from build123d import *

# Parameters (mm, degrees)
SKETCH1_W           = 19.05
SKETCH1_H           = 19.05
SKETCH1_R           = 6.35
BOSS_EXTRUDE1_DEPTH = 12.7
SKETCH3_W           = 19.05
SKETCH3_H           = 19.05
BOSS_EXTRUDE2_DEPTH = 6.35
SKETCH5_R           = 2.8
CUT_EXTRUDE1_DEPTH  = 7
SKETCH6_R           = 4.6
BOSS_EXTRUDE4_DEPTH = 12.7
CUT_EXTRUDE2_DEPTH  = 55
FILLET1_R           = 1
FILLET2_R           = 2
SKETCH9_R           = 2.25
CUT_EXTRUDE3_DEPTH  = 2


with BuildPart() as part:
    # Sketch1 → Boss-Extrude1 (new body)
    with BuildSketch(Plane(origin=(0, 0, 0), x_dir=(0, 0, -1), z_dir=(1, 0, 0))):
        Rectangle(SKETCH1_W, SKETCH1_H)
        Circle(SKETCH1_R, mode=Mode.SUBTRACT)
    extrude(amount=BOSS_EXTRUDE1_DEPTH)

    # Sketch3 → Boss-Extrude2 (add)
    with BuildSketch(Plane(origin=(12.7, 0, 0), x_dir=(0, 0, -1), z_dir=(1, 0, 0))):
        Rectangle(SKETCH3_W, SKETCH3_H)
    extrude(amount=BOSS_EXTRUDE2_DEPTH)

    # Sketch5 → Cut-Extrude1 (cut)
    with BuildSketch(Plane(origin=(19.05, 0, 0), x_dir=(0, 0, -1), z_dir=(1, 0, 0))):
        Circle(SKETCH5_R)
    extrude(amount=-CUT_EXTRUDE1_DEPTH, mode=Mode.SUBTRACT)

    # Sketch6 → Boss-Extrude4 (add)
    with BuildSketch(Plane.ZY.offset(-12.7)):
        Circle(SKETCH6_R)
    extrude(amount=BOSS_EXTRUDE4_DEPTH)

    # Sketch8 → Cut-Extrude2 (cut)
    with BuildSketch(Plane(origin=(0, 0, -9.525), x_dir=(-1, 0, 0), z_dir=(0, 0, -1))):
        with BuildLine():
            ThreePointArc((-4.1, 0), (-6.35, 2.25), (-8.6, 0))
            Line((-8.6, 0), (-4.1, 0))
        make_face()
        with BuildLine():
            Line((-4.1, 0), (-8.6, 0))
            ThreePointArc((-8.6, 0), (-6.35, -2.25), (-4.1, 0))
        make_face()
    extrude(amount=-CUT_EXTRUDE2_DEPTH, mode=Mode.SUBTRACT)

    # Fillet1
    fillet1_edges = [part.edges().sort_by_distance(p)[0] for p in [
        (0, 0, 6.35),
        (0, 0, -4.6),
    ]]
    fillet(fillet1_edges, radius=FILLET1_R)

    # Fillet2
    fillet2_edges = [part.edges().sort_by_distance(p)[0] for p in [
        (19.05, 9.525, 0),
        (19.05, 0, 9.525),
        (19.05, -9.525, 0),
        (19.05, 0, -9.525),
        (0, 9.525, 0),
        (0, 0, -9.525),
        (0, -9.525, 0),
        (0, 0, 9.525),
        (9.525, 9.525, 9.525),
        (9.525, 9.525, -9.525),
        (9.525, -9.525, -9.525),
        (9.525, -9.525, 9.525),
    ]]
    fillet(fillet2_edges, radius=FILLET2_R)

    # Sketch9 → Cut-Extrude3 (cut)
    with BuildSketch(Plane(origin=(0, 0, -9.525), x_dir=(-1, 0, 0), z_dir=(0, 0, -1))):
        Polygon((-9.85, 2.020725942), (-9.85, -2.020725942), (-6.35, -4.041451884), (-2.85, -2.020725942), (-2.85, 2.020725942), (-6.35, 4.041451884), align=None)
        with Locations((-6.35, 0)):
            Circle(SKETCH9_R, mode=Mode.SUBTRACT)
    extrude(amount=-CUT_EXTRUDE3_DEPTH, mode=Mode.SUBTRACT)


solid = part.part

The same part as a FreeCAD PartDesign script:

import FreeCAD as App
import Part
import Sketcher
Q = App.Units.Quantity


def edges_at(feature, points):
    """Names of the edges that pass closest to the given points."""
    edges = feature.Shape.Edges
    near = lambda p: min(range(len(edges)), key=lambda i: edges[i].distToShape(Part.Vertex(*p))[0])
    return sorted({f"Edge{near(p) + 1}" for p in points})

doc = App.newDocument("Part")
body = doc.addObject("PartDesign::Body", "Body")

sketch1 = doc.addObject("Sketcher::SketchObject", "Sketch")
body.addObject(sketch1)
sketch1.AttachmentSupport = (doc.YZ_Plane, [""])
sketch1.MapMode = "FlatFace"
sketch1.addGeometry([
    Part.LineSegment(App.Vector(10, 10, 0), App.Vector(-10, 10, 0)),
    Part.LineSegment(App.Vector(-10, 10, 0), App.Vector(-10, -10, 0)),
    Part.LineSegment(App.Vector(-10, -10, 0), App.Vector(10, -10, 0)),
    Part.LineSegment(App.Vector(10, -10, 0), App.Vector(10, 10, 0)),
    Part.Circle(App.Vector(0, 0, 0), App.Vector(0, 0, 1), 6),
], False)
sketch1.addConstraint([
    Sketcher.Constraint("Coincident", 0, 2, 1, 1),
    Sketcher.Constraint("Coincident", 1, 2, 2, 1),
    Sketcher.Constraint("Coincident", 2, 2, 3, 1),
    Sketcher.Constraint("Coincident", 3, 2, 0, 1),
    Sketcher.Constraint("Horizontal", 0),
    Sketcher.Constraint("Vertical", 1),
    Sketcher.Constraint("Horizontal", 2),
    Sketcher.Constraint("Vertical", 3),
    Sketcher.Constraint("Coincident", 4, 3, -1, 1),
    Sketcher.Constraint("Symmetric", 0, 2, 2, 2, -1, 1),
    Sketcher.Constraint("Equal", 2, 1),
    Sketcher.Constraint("Diameter", 4, 12.7),
    Sketcher.Constraint("DistanceX", 0, 2, 0, 1, 19.05),
])
pad1 = doc.addObject("PartDesign::Pad", "Pad")
body.addObject(pad1)
pad1.Profile = sketch1
pad1.Length = 12.7

sketch2 = doc.addObject("Sketcher::SketchObject", "Sketch001")
body.addObject(sketch2)
sketch2.AttachmentSupport = (doc.YZ_Plane, [""])
sketch2.MapMode = "FlatFace"
sketch2.AttachmentOffset = App.Placement(App.Vector(0, 0, 12.7), App.Rotation())
sketch2.addGeometry([
    Part.LineSegment(App.Vector(10, 10, 0), App.Vector(-10, 10, 0)),
    Part.LineSegment(App.Vector(-10, 10, 0), App.Vector(-10, -10, 0)),
    Part.LineSegment(App.Vector(-10, -10, 0), App.Vector(10, -10, 0)),
    Part.LineSegment(App.Vector(10, -10, 0), App.Vector(10, 10, 0)),
], False)
sketch2.addConstraint([
    Sketcher.Constraint("Coincident", 0, 2, 1, 1),
    Sketcher.Constraint("Coincident", 1, 2, 2, 1),
    Sketcher.Constraint("Coincident", 2, 2, 3, 1),
    Sketcher.Constraint("Coincident", 3, 2, 0, 1),
    Sketcher.Constraint("Horizontal", 0),
    Sketcher.Constraint("Vertical", 1),
    Sketcher.Constraint("Horizontal", 2),
    Sketcher.Constraint("Vertical", 3),
    Sketcher.Constraint("Symmetric", 0, 2, 2, 2, -1, 1),
    Sketcher.Constraint("Equal", 2, 1),
    Sketcher.Constraint("DistanceX", 0, 2, 0, 1, 19.05),
])
pad2 = doc.addObject("PartDesign::Pad", "Pad001")
body.addObject(pad2)
pad2.Profile = sketch2
pad2.Length = 6.35

sketch3 = doc.addObject("Sketcher::SketchObject", "Sketch002")
body.addObject(sketch3)
sketch3.AttachmentSupport = (doc.YZ_Plane, [""])
sketch3.MapMode = "FlatFace"
sketch3.AttachmentOffset = App.Placement(App.Vector(0, 0, 19.05), App.Rotation())
sketch3.addGeometry(Part.Circle(App.Vector(0, 0, 0), App.Vector(0, 0, 1), 2.8), False)
sketch3.addConstraint([
    Sketcher.Constraint("Coincident", 0, 3, -1, 1),
    Sketcher.Constraint("Diameter", 0, 5.6),
])
pocket1 = doc.addObject("PartDesign::Pocket", "Pocket")
body.addObject(pocket1)
pocket1.Profile = sketch3
pocket1.Length = 7

sketch4 = doc.addObject("Sketcher::SketchObject", "Sketch003")
body.addObject(sketch4)
sketch4.AttachmentSupport = (doc.YZ_Plane, [""])
sketch4.MapMode = "FlatFace"
sketch4.AttachmentOffset = App.Placement(App.Vector(0, 0, 12.7), App.Rotation())
sketch4.addGeometry(Part.Circle(App.Vector(0, 0, 0), App.Vector(0, 0, 1), 4.6), False)
sketch4.addConstraint([
    Sketcher.Constraint("Coincident", 0, 3, -1, 1),
    Sketcher.Constraint("Diameter", 0, 9.2),
])
pad3 = doc.addObject("PartDesign::Pad", "Pad002")
body.addObject(pad3)
pad3.Profile = sketch4
pad3.Length = 12.7
pad3.Reversed = True

sketch5 = doc.addObject("Sketcher::SketchObject", "Sketch004")
body.addObject(sketch5)
sketch5.AttachmentSupport = (doc.XY_Plane, [""])
sketch5.MapMode = "FlatFace"
sketch5.AttachmentOffset = App.Placement(App.Vector(0, 0, -9.525), App.Rotation())
sketch5.addGeometry(Part.Circle(App.Vector(6.3, 0, 0), App.Vector(0, 0, 1), 2.2), False)
sketch5.addConstraint([
    Sketcher.Constraint("PointOnObject", 0, 3, -1),
    Sketcher.Constraint("Diameter", 0, 4.5),
    Sketcher.Constraint("DistanceX", -1, 1, 0, 3, 6.35),
])
pocket2 = doc.addObject("PartDesign::Pocket", "Pocket001")
body.addObject(pocket2)
pocket2.Profile = sketch5
pocket2.Length = 55
pocket2.Reversed = True
doc.recompute()

fillet = doc.addObject("PartDesign::Fillet", "Fillet")
body.addObject(fillet)
fillet.Base = (pocket2, edges_at(pocket2, [(0, 0, 6.35), (0, 0, -4.6)]))
fillet.Radius = 1
doc.recompute()

fillet2 = doc.addObject("PartDesign::Fillet", "Fillet001")
body.addObject(fillet2)
fillet2.Base = (fillet, edges_at(fillet, [
    (19.05, 9.525, 0),
    (19.05, 0, 9.525),
    (19.05, -9.525, 0),
    (19.05, 0, -9.525),
    (0, 9.525, 0),
    (0, 0, -9.525),
    (0, -9.525, 0),
    (0, 0, 9.525),
    (9.525, 9.525, 9.525),
    (9.525, 9.525, -9.525),
    (9.525, -9.525, -9.525),
    (9.525, -9.525, 9.525),
]))
fillet2.Radius = 2

sketch6 = doc.addObject("Sketcher::SketchObject", "Sketch005")
body.addObject(sketch6)
sketch6.AttachmentSupport = (doc.XY_Plane, [""])
sketch6.MapMode = "FlatFace"
sketch6.AttachmentOffset = App.Placement(App.Vector(0, 0, -9.525), App.Rotation())
sketch6.addGeometry([
    Part.LineSegment(App.Vector(9.8, 2, 0), App.Vector(9.8, -2, 0)),
    Part.LineSegment(App.Vector(9.8, -2, 0), App.Vector(6.3, -4, 0)),
    Part.LineSegment(App.Vector(6.3, -4, 0), App.Vector(2.9, -2, 0)),
    Part.LineSegment(App.Vector(2.9, -2, 0), App.Vector(2.9, 2, 0)),
    Part.LineSegment(App.Vector(2.9, 2, 0), App.Vector(6.3, 4, 0)),
    Part.LineSegment(App.Vector(6.3, 4, 0), App.Vector(9.8, 2, 0)),
    Part.Circle(App.Vector(6.3, 0, 0), App.Vector(0, 0, 1), 2.2),
], False)
sketch6.addConstraint([
    Sketcher.Constraint("Coincident", 0, 2, 1, 1),
    Sketcher.Constraint("Coincident", 1, 2, 2, 1),
    Sketcher.Constraint("Coincident", 2, 2, 3, 1),
    Sketcher.Constraint("Coincident", 3, 2, 4, 1),
    Sketcher.Constraint("Coincident", 4, 2, 5, 1),
    Sketcher.Constraint("Coincident", 5, 2, 0, 1),
    Sketcher.Constraint("Vertical", 0),
    Sketcher.Constraint("Vertical", 3),
    Sketcher.Constraint("Symmetric", 1, 2, 4, 2, -1),
    Sketcher.Constraint("PointOnObject", 6, 3, -1),
    Sketcher.Constraint("Parallel", 1, 4),
    Sketcher.Constraint("Parallel", 2, 5),
    Sketcher.Constraint("Horizontal", 0, 2, 2, 2),
    Sketcher.Constraint("Horizontal", 3, 2, 5, 2),
    Sketcher.Constraint("Vertical", 6, 3, 1, 2),
    Sketcher.Constraint("Diameter", 6, 4.5),
    Sketcher.Constraint("Angle", 1, Q("-150 deg")),
    Sketcher.Constraint("DistanceX", 2, 2, 0, 2, 7.0),
    Sketcher.Constraint("DistanceX", -1, 1, 6, 3, 6.35),
    Sketcher.Constraint("DistanceY", 0, 2, 0, 1, 4.041452),
])
pocket3 = doc.addObject("PartDesign::Pocket", "Pocket002")
body.addObject(pocket3)
pocket3.Profile = sketch6
pocket3.Length = 2
pocket3.Reversed = True

doc.recompute()
